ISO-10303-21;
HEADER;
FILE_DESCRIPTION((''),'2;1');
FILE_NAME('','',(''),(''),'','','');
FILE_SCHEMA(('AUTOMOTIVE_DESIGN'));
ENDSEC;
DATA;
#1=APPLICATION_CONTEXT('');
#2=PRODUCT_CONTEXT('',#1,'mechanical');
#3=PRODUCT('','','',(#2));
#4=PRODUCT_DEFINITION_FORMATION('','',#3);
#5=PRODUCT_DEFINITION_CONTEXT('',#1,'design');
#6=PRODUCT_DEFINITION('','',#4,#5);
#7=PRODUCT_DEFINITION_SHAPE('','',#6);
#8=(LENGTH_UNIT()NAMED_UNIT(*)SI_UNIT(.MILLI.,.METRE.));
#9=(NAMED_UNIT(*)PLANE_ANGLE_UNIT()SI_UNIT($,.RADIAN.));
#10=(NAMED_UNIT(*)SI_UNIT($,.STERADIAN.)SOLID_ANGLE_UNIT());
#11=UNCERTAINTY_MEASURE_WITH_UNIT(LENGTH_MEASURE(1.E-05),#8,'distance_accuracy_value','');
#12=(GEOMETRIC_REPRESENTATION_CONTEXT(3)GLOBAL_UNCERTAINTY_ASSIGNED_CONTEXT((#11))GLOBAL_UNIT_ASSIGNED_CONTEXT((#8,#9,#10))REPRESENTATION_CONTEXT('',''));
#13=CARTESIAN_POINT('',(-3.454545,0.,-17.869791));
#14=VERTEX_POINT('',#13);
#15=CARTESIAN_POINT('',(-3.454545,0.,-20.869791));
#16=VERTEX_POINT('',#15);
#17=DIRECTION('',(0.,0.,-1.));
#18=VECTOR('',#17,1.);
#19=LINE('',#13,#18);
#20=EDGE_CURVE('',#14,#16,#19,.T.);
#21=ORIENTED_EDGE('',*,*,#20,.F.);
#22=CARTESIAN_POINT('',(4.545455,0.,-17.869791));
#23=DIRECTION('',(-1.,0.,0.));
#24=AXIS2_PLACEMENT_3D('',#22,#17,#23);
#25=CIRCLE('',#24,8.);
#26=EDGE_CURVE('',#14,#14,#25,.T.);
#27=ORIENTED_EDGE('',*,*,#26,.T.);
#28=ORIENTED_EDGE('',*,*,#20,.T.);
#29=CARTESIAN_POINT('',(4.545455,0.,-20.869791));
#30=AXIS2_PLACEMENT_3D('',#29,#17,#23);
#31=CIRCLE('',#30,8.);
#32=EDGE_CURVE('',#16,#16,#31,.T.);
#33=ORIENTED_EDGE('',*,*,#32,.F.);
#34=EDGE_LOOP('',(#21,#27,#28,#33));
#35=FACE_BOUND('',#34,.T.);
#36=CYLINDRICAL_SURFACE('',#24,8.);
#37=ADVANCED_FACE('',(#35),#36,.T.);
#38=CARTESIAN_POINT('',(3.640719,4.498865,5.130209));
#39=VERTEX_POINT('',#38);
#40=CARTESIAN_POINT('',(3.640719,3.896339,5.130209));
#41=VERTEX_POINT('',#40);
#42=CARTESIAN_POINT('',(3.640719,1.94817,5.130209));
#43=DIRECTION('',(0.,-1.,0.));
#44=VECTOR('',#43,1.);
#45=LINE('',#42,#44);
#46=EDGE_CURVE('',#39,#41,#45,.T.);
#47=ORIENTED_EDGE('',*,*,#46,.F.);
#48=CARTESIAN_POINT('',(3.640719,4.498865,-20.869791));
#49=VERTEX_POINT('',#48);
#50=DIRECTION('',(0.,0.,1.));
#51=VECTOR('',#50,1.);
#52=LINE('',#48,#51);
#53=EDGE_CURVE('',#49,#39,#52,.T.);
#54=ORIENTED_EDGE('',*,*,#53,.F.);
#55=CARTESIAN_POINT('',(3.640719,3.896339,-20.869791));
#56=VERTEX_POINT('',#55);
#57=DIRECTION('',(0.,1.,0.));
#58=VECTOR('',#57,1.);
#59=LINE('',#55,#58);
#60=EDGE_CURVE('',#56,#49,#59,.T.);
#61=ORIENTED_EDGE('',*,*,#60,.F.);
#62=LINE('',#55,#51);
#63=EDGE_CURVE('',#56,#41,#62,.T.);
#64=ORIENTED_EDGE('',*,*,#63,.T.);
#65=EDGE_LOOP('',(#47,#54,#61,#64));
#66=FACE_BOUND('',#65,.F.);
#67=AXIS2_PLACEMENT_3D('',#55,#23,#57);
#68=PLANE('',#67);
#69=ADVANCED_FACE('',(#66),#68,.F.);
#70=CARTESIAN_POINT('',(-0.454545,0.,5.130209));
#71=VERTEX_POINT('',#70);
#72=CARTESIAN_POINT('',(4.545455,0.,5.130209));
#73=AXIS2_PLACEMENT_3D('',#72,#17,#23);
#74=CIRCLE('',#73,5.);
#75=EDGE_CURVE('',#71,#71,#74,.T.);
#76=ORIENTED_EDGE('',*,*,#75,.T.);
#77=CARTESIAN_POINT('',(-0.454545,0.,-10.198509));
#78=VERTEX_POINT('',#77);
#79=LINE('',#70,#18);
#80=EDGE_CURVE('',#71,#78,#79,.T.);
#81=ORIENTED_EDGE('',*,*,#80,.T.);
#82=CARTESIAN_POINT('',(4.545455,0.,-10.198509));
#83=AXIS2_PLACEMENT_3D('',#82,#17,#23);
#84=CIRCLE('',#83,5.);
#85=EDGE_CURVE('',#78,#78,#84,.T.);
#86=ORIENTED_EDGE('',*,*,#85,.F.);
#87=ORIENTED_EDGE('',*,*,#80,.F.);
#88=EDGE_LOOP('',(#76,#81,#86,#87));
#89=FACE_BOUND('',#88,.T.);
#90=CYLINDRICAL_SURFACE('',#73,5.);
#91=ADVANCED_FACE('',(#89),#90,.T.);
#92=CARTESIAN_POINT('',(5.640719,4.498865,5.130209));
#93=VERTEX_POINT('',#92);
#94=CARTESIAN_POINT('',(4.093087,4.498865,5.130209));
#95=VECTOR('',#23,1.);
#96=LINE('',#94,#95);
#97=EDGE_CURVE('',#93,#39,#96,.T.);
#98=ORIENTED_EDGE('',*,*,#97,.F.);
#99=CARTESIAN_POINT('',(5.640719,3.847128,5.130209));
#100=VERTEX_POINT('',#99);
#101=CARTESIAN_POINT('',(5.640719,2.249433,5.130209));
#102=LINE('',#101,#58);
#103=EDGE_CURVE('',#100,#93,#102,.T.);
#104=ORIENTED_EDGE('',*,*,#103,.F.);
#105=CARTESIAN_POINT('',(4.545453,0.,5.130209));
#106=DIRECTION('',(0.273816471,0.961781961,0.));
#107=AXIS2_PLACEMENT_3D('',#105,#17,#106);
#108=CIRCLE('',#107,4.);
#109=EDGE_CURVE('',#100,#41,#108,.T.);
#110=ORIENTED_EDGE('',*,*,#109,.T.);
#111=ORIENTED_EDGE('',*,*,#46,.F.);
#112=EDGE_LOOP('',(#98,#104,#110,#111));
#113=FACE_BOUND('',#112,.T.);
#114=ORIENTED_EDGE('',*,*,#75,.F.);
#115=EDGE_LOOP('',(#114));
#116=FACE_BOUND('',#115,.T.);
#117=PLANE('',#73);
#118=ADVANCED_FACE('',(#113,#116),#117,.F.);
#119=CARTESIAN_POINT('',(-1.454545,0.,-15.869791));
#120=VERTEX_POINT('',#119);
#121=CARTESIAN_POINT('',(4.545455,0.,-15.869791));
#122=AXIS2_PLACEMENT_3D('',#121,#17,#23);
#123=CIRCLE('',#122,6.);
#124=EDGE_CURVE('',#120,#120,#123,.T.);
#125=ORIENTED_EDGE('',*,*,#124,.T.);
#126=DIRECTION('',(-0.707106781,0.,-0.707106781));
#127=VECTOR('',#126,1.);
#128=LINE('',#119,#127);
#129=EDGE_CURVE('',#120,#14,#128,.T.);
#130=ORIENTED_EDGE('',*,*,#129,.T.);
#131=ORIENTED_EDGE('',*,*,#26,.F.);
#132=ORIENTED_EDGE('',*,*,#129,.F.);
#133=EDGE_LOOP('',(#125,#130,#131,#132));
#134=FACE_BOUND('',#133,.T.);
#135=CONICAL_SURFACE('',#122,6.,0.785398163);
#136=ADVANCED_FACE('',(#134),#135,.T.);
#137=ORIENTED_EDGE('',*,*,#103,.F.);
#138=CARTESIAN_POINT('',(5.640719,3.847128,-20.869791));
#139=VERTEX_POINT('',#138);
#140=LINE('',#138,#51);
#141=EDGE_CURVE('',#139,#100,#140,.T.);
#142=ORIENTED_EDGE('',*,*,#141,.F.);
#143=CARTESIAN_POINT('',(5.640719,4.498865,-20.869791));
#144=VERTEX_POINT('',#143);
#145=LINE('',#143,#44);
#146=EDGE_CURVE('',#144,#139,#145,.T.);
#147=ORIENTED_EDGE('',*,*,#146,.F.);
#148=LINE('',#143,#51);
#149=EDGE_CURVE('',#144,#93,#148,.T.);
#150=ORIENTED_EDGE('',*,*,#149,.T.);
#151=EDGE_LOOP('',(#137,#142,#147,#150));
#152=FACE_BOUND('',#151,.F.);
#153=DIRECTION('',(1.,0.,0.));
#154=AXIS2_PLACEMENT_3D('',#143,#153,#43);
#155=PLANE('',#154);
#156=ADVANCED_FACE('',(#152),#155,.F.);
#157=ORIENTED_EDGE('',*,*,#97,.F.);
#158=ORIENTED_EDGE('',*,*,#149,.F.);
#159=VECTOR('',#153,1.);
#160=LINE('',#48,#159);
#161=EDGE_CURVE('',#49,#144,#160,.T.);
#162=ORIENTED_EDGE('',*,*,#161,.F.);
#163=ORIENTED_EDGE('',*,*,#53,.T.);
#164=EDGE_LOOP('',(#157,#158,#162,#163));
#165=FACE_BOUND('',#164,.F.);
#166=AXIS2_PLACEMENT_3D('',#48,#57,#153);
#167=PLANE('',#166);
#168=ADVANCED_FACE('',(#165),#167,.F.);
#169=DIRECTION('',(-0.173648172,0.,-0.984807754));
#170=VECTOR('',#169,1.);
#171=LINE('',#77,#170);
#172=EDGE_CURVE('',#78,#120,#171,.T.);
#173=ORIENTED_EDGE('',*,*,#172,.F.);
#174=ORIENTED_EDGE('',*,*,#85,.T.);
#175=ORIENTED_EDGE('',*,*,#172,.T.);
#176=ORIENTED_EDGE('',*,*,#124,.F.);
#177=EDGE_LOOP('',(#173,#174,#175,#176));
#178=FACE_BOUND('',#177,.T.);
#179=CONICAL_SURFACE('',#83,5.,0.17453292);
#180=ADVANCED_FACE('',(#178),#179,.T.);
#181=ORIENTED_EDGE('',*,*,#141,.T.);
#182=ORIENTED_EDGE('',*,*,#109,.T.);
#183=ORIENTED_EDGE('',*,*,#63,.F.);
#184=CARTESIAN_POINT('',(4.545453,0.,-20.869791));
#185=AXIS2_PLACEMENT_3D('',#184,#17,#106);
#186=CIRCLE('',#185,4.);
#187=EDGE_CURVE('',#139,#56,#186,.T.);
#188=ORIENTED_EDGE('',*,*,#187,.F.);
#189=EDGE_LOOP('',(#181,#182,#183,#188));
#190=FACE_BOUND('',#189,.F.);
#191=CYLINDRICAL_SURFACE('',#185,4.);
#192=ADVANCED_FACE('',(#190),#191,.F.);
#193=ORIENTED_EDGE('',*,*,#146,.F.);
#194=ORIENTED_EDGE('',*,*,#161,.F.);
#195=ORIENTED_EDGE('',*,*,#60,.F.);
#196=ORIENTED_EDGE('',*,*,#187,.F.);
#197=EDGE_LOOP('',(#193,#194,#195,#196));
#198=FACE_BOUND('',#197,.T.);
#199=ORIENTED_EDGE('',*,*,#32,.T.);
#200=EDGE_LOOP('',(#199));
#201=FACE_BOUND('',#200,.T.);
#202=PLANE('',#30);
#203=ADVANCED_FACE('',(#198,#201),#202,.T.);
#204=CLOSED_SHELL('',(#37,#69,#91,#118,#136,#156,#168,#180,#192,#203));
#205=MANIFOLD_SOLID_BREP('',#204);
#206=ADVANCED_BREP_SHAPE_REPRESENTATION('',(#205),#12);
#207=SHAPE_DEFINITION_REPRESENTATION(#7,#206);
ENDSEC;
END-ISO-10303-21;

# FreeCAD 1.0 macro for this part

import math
import FreeCAD as App
import Part
import Sketcher
from FreeCAD import Vector
Q = App.Units.Quantity

doc = App.newDocument("Part")
body = doc.addObject("PartDesign::Body", "Body")

sketch1 = body.newObject("Sketcher::SketchObject", "Sketch")
sketch1.AttachmentSupport = (doc.getObject("XZ_Plane"), [""])
sketch1.MapMode = "FlatFace"
sketch1.addGeometry(Part.LineSegment(Vector(-3.5, -17.9, 0), Vector(-3.5, -20.9, 0)), False)
sketch1.addGeometry(Part.LineSegment(Vector(-3.5, -20.9, 0), Vector(4.5, -20.9, 0)), False)
sketch1.addGeometry(Part.LineSegment(Vector(4.5, -20.9, 0), Vector(4.5, 5.1, 0)), False)
sketch1.addGeometry(Part.LineSegment(Vector(4.5, 5.1, 0), Vector(-0.5, 5.1, 0)), False)
sketch1.addGeometry(Part.LineSegment(Vector(-0.5, 5.1, 0), Vector(-0.5, -10.2, 0)), False)
sketch1.addGeometry(Part.LineSegment(Vector(-0.5, -10.2, 0), Vector(-1.5, -15.9, 0)), False)
sketch1.addGeometry(Part.LineSegment(Vector(-1.5, -15.9, 0), Vector(-3.5, -17.9, 0)), False)
sketch1.addGeometry(Part.LineSegment(Vector(4.5, 5.1, 0), Vector(4.5, -20.9, 0)), True)
sketch1.addConstraint(Sketcher.Constraint("Coincident", 0, 2, 1, 1))
sketch1.addConstraint(Sketcher.Constraint("Coincident", 1, 2, 2, 1))
sketch1.addConstraint(Sketcher.Constraint("Coincident", 2, 2, 3, 1))
sketch1.addConstraint(Sketcher.Constraint("Coincident", 3, 2, 4, 1))
sketch1.addConstraint(Sketcher.Constraint("Coincident", 4, 2, 5, 1))
sketch1.addConstraint(Sketcher.Constraint("Coincident", 5, 2, 6, 1))
sketch1.addConstraint(Sketcher.Constraint("Coincident", 6, 2, 0, 1))
sketch1.addConstraint(Sketcher.Constraint("Vertical", 0))
sketch1.addConstraint(Sketcher.Constraint("Horizontal", 1))
sketch1.addConstraint(Sketcher.Constraint("Vertical", 2))
sketch1.addConstraint(Sketcher.Constraint("Horizontal", 3))
sketch1.addConstraint(Sketcher.Constraint("Vertical", 4))
sketch1.addConstraint(Sketcher.Constraint("Vertical", 7))
sketch1.addConstraint(Sketcher.Constraint("Coincident", 7, 1, 2, 2))
sketch1.addConstraint(Sketcher.Constraint("Horizontal", 0, 2, 7, 2))
sketch1.addConstraint(Sketcher.Constraint("DistanceX", 1, 1, 1, 2, 8.0))
sketch1.addConstraint(Sketcher.Constraint("DistanceX", 3, 2, 3, 1, 5.0))
sketch1.addConstraint(Sketcher.Constraint("DistanceY", 0, 2, 0, 1, 3.0))
sketch1.addConstraint(Sketcher.Constraint("DistanceY", 2, 1, 2, 2, 26.0))
sketch1.addConstraint(Sketcher.Constraint("Angle", 5, Q("-100 deg")))
sketch1.addConstraint(Sketcher.Constraint("Angle", 6, Q("-135 deg")))
sketch1.addConstraint(Sketcher.Constraint("DistanceX", 0, 2, 5, 2, 2.0))
sketch1.addConstraint(Sketcher.Constraint("DistanceY", 0, 2, -1, 1, 20.869791))
sketch1.addConstraint(Sketcher.Constraint("DistanceX", 0, 2, -1, 1, 3.454545))
revolution = body.newObject("PartDesign::Revolution", "Revolution")
revolution.Profile = sketch1
revolution.ReferenceAxis = (sketch1, ["Axis0"])
revolution.Angle = 360

sketch2 = body.newObject("Sketcher::SketchObject", "Sketch001")
sketch2.AttachmentSupport = (doc.getObject("XY_Plane"), [""])
sketch2.MapMode = "FlatFace"
sketch2.AttachmentOffset = App.Placement(Vector(0, 0, -20.869791), App.Rotation())
sketch2.addGeometry(Part.LineSegment(Vector(5.6, 4.5, 0), Vector(5.6, 3.8, 0)), False)
sketch2.addGeometry(Part.ArcOfCircle(Part.Circle(Vector(4.5, 0, 0), Vector(0, 0, 1), 4), math.radians(103), math.radians(434)), False)
sketch2.addGeometry(Part.LineSegment(Vector(3.6, 3.9, 0), Vector(3.6, 4.5, 0)), False)
sketch2.addGeometry(Part.LineSegment(Vector(3.6, 4.5, 0), Vector(5.6, 4.5, 0)), False)
sketch2.addConstraint(Sketcher.Constraint("Coincident", 0, 2, 1, 2))
sketch2.addConstraint(Sketcher.Constraint("Coincident", 1, 1, 2, 1))
sketch2.addConstraint(Sketcher.Constraint("Coincident", 2, 2, 3, 1))
sketch2.addConstraint(Sketcher.Constraint("Coincident", 3, 2, 0, 1))
sketch2.addConstraint(Sketcher.Constraint("Vertical", 0))
sketch2.addConstraint(Sketcher.Constraint("Vertical", 2))
sketch2.addConstraint(Sketcher.Constraint("Horizontal", 3))
sketch2.addConstraint(Sketcher.Constraint("PointOnObject", 1, 3, -1))
sketch2.addConstraint(Sketcher.Constraint("Radius", 1, 4.0))
sketch2.addConstraint(Sketcher.Constraint("DistanceX", 3, 1, 3, 2, 2.0))
sketch2.addConstraint(Sketcher.Constraint("DistanceY", 0, 2, 0, 1, 0.651737))
sketch2.addConstraint(Sketcher.Constraint("DistanceY", 2, 1, 2, 2, 0.602526))
sketch2.addConstraint(Sketcher.Constraint("DistanceX", -1, 1, 0, 2, 5.640719))
pocket1 = body.newObject("PartDesign::Pocket", "Pocket")
pocket1.Profile = sketch2
pocket1.Length = 30
pocket1.Reversed = True

doc.recompute()
